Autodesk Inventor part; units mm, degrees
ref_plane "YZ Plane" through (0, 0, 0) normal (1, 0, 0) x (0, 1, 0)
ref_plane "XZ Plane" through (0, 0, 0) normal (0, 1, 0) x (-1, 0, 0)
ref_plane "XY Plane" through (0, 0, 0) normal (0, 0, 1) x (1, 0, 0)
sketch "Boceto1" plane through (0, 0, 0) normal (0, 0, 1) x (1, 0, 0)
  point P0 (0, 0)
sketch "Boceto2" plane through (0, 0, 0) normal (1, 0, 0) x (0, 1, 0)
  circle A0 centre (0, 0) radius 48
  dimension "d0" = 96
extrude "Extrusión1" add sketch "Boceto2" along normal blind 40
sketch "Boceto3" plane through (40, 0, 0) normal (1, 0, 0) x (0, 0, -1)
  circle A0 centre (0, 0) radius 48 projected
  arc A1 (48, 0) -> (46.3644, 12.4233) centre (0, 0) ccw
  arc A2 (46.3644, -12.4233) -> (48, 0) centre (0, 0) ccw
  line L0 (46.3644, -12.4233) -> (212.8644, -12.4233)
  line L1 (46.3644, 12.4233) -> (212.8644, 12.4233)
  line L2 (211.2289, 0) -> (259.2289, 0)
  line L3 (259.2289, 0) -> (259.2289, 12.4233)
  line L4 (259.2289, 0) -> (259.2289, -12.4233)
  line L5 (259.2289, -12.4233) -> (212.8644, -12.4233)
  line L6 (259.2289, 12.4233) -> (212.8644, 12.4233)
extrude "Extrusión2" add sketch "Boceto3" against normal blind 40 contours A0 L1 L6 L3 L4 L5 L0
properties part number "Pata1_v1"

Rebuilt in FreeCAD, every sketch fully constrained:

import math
import FreeCAD as App
import Part
import Sketcher

V = App.Vector

doc = App.newDocument("Part")
body = doc.addObject("PartDesign::Body", "Body")

# Sketch on YZ plane
sketch1 = body.newObject("Sketcher::SketchObject", "Sketch")
sketch1.AttachmentSupport = (doc.getObject("YZ_Plane"), [""])
sketch1.MapMode = "FlatFace"
sketch1.addGeometry(Part.Circle(V(0, 0, 0), V(0, 0, 1), 48), False)
sketch1.addConstraint([
    Sketcher.Constraint("Coincident", 0, 3, -1, 1),
    Sketcher.Constraint("Diameter", 0, 96.0),
])
pad1 = body.newObject("PartDesign::Pad", "Pad")
pad1.Profile = sketch1
pad1.Length = 40

# Sketch on YZ plane
sketch2 = body.newObject("Sketcher::SketchObject", "Sketch001")
sketch2.AttachmentSupport = (doc.getObject("YZ_Plane"), [""])
sketch2.MapMode = "FlatFace"
sketch2.AttachmentOffset = App.Placement(V(0, 0, 40), App.Rotation())
sketch2.addGeometry([
    Part.ArcOfCircle(Part.Circle(V(0, 0, 0), V(0, 0, 1), 48), math.radians(-105), math.radians(-75)),
    Part.LineSegment(V(-12, -46, 0), V(-12, -259, 0)),
    Part.LineSegment(V(-12, -259, 0), V(12, -259, 0)),
    Part.LineSegment(V(12, -259, 0), V(12, -46, 0)),
], False)
sketch2.addConstraint([
    Sketcher.Constraint("Coincident", 0, 1, 1, 1),
    Sketcher.Constraint("Coincident", 1, 2, 2, 1),
    Sketcher.Constraint("Coincident", 2, 2, 3, 1),
    Sketcher.Constraint("Coincident", 3, 2, 0, 2),
    Sketcher.Constraint("Vertical", 1),
    Sketcher.Constraint("Horizontal", 2),
    Sketcher.Constraint("Vertical", 3),
    Sketcher.Constraint("Coincident", 0, 3, -1, 1),
    Sketcher.Constraint("Horizontal", 0, 1, 3, 2),
    Sketcher.Constraint("Radius", 0, 48.0),
    Sketcher.Constraint("DistanceX", 2, 1, 2, 2, 24.8466),
    Sketcher.Constraint("DistanceY", 1, 2, 1, 1, 212.8645),
])
pad2 = body.newObject("PartDesign::Pad", "Pad001")
pad2.Profile = sketch2
pad2.Length = 40
pad2.Reversed = True

doc.recompute()
